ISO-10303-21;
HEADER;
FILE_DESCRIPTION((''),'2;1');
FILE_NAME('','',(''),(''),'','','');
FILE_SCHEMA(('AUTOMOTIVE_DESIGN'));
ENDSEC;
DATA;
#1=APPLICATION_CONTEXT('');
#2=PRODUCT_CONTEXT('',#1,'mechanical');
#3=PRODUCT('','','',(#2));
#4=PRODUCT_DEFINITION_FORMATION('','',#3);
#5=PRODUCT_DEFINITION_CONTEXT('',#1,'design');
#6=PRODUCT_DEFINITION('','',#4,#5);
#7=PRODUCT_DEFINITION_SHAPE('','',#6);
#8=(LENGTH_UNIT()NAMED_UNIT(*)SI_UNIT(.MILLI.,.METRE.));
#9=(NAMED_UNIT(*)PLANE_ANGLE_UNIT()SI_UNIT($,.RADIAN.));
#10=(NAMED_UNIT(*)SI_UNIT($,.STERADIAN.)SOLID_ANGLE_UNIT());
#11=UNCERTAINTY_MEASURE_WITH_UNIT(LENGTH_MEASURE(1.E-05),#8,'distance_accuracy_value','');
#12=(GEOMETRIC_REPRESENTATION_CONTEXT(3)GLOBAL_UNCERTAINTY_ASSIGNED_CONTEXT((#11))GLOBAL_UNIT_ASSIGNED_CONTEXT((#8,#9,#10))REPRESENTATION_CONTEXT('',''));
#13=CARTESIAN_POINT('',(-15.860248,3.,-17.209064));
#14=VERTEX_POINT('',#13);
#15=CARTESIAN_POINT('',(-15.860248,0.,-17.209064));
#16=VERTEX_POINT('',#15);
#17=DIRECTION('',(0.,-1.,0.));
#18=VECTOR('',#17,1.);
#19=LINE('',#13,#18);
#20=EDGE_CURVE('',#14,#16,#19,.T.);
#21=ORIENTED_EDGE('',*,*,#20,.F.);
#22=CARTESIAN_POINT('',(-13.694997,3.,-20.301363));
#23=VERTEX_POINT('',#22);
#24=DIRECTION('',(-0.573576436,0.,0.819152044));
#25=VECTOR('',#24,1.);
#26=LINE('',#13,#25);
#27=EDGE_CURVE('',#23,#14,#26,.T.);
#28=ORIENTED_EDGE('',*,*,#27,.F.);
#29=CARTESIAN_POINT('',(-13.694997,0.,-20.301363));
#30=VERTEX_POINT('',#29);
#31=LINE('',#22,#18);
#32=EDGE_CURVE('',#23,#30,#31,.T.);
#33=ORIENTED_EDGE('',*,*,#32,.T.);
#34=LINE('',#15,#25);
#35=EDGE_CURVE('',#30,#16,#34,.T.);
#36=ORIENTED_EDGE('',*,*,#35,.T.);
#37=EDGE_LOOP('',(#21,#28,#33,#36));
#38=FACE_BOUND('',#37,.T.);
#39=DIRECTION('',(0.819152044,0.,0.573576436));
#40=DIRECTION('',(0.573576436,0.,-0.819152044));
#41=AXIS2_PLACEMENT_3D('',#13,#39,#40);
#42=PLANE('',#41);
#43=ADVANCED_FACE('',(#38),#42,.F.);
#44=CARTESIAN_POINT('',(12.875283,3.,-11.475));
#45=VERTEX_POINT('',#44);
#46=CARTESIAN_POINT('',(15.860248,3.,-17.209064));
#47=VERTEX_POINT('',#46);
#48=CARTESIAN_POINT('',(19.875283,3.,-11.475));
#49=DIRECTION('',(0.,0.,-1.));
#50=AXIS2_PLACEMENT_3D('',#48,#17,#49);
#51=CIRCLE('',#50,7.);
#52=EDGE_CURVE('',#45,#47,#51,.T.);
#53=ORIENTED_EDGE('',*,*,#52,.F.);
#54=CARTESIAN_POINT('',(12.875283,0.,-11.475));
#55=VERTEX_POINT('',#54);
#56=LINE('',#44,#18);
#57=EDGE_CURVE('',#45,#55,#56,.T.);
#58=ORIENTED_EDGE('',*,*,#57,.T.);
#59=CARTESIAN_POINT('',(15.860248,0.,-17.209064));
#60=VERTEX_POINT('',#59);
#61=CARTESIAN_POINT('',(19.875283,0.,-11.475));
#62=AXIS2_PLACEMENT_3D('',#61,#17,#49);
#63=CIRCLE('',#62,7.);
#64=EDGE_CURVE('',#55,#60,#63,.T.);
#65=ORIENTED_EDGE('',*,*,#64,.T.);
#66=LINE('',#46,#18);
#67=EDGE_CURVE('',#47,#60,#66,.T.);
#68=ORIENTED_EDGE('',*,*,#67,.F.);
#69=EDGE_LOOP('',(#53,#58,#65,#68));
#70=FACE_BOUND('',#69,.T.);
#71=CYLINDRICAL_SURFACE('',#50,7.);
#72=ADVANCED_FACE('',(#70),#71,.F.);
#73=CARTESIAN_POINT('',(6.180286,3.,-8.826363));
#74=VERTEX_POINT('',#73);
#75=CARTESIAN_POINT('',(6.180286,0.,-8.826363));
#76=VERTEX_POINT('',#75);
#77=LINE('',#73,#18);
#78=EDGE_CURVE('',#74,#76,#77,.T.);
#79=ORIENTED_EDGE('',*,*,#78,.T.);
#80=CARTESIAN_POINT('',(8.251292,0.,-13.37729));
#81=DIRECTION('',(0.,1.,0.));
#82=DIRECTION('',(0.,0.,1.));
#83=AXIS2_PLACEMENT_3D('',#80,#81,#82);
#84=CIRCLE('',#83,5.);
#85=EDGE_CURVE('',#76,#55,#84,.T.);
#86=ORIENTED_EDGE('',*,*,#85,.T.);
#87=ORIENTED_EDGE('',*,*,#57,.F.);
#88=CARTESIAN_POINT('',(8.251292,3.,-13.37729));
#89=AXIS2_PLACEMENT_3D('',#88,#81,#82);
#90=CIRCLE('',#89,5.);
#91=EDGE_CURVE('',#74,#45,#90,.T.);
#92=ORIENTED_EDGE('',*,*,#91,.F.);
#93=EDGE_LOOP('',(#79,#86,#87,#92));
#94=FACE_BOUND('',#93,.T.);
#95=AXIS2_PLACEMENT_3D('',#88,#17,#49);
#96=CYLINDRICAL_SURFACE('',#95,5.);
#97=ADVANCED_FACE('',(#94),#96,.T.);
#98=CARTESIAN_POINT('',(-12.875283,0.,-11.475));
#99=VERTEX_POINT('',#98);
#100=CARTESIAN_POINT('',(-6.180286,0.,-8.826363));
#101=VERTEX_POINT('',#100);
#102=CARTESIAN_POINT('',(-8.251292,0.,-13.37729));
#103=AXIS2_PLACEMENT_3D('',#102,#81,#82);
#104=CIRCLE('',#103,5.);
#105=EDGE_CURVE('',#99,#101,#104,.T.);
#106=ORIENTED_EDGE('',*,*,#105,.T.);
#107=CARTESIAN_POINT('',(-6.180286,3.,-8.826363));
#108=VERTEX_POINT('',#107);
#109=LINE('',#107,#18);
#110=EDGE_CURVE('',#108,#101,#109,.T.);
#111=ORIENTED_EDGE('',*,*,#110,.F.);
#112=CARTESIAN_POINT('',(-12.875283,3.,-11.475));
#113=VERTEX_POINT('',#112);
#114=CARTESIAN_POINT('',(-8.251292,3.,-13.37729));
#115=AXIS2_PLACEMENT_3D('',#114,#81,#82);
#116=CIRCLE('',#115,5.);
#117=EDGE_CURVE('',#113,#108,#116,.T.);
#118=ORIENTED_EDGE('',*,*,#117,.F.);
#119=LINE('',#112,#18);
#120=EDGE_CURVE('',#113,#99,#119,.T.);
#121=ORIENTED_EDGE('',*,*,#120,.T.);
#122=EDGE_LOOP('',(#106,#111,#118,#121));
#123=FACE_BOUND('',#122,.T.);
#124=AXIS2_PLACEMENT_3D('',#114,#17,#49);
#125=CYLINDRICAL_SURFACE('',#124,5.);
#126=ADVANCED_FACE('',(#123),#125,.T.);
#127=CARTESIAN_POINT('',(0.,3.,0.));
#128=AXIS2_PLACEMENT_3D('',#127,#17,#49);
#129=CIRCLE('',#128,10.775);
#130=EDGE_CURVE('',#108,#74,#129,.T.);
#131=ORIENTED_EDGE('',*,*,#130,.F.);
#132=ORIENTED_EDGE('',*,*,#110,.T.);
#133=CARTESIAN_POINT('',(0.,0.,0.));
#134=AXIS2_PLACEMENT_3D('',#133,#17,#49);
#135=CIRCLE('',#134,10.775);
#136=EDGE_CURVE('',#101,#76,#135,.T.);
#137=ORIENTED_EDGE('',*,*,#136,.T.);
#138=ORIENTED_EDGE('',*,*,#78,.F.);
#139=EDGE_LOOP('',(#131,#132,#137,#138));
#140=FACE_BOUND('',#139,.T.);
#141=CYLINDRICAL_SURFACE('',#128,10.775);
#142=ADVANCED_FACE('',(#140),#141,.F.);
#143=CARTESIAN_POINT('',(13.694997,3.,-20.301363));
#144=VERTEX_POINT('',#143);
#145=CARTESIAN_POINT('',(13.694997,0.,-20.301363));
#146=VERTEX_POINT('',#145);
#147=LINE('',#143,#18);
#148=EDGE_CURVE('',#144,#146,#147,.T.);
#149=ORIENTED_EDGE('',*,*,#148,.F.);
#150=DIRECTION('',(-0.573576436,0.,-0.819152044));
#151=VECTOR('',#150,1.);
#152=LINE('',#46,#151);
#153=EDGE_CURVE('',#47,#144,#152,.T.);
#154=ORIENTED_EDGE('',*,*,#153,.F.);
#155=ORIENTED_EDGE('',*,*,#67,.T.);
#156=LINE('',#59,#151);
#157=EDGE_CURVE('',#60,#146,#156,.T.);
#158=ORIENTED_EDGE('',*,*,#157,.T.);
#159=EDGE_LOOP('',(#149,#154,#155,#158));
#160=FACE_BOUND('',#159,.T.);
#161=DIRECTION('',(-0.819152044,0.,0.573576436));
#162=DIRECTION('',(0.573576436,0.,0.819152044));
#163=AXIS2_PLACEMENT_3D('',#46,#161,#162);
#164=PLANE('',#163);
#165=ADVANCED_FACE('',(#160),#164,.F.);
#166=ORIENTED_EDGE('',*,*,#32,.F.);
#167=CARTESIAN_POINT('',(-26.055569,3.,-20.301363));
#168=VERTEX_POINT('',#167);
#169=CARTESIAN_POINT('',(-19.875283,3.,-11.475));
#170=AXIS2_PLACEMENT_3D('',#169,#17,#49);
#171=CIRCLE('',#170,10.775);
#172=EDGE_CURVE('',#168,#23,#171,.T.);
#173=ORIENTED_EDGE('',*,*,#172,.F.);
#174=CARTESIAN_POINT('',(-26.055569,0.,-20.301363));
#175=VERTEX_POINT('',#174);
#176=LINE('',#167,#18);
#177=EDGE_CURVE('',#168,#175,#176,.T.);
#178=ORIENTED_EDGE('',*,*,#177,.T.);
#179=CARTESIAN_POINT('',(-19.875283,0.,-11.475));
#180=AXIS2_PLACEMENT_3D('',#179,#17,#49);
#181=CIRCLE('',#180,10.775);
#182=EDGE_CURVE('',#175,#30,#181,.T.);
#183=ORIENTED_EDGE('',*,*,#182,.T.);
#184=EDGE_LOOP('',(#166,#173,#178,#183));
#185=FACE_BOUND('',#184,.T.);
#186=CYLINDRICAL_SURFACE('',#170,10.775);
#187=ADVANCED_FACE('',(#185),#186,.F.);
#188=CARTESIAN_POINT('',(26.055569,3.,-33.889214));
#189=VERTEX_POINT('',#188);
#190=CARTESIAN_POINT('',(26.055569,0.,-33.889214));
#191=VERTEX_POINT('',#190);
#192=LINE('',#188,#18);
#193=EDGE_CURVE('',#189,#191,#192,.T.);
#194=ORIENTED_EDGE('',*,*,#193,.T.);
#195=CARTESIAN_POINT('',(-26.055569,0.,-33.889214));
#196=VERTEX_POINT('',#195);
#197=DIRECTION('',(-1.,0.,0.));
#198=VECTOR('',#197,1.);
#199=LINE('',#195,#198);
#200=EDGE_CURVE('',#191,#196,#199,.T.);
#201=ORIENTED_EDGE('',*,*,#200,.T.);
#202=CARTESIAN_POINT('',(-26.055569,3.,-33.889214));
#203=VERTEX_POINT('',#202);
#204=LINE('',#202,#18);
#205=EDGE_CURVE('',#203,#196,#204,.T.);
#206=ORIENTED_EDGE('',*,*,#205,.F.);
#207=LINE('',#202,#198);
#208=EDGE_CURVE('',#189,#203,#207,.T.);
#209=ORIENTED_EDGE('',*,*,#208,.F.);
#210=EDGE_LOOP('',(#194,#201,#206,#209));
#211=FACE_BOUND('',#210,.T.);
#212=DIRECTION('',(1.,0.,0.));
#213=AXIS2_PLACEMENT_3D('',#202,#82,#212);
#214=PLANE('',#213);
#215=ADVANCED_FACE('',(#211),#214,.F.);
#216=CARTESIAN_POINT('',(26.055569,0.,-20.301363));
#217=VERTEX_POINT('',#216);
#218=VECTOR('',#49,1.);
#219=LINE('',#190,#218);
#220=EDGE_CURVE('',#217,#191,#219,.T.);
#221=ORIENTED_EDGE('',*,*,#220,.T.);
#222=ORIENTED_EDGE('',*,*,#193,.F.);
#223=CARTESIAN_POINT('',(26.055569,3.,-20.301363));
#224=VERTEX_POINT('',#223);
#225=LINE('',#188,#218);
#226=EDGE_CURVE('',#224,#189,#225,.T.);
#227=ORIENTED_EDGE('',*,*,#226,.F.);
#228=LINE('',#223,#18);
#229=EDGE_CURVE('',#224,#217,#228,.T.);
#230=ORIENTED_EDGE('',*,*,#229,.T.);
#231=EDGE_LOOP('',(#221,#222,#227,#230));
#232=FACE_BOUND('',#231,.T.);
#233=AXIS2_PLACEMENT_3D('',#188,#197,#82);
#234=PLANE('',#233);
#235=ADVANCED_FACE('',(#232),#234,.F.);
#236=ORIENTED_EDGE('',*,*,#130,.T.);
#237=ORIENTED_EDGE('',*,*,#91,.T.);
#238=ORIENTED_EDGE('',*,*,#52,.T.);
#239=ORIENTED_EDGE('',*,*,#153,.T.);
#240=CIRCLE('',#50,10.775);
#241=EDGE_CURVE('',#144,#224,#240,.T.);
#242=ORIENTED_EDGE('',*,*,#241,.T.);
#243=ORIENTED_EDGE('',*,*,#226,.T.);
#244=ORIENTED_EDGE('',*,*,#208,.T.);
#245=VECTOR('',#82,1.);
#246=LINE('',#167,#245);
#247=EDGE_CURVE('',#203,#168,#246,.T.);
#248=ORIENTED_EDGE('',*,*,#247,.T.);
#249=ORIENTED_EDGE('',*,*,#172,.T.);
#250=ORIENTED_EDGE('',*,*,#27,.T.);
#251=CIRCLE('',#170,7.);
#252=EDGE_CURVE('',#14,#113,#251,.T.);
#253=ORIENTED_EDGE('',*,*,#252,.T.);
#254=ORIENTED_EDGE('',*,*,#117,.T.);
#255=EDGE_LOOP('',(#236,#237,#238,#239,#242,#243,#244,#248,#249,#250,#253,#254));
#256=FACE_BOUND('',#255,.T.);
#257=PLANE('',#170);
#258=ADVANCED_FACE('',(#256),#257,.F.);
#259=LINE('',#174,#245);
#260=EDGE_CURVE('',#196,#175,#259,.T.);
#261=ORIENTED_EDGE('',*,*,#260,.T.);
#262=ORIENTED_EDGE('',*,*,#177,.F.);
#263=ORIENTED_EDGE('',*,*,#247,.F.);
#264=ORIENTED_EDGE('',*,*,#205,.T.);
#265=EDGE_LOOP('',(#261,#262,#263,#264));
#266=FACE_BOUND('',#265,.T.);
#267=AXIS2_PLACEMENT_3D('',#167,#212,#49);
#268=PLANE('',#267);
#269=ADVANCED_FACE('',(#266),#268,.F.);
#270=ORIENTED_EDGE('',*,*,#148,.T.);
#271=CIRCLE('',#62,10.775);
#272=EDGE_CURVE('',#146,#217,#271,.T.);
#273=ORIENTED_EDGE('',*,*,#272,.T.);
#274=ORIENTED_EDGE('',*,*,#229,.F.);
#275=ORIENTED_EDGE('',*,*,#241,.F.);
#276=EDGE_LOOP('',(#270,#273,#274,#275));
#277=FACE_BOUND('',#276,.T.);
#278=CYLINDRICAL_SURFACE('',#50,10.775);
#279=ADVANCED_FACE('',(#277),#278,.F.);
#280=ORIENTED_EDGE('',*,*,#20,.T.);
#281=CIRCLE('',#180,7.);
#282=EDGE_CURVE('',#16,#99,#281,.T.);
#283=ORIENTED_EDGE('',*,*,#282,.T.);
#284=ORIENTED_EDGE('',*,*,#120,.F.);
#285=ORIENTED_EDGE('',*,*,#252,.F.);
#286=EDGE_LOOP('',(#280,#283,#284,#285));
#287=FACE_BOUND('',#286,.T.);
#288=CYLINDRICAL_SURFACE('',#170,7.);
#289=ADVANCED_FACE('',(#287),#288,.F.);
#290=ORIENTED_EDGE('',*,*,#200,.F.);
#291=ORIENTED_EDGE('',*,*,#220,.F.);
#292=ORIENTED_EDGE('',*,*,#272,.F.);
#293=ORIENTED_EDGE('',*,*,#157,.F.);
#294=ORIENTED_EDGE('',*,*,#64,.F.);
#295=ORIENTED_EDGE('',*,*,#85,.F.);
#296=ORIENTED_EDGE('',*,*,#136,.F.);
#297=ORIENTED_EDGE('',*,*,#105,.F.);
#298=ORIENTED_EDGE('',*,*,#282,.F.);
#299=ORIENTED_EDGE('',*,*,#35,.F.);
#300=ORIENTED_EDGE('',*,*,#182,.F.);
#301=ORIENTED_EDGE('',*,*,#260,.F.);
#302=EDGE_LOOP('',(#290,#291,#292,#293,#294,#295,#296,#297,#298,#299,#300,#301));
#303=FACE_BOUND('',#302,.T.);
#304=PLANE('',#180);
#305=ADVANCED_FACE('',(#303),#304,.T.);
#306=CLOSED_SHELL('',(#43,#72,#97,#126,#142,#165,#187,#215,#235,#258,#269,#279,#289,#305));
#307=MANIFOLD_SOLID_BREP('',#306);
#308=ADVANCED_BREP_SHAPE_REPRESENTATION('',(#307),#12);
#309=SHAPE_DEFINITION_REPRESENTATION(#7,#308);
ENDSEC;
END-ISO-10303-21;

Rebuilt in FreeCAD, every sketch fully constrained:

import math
import FreeCAD as App
import Part
import Sketcher

V = App.Vector
Q = App.Units.Quantity

doc = App.newDocument("Part")
body = doc.addObject("PartDesign::Body", "Body")

sketch1 = body.newObject("Sketcher::SketchObject", "Sketch")
sketch1.AttachmentSupport = (doc.getObject("XZ_Plane"), [""])
sketch1.MapMode = "FlatFace"
sketch1.addGeometry([
    Part.LineSegment(V(-13.7, -20.3, 0), V(-15.9, -17.2, 0)),
    Part.ArcOfCircle(Part.Circle(V(-19.9, -11.5, 0), V(0, 0, 1), 7), math.radians(-55), math.radians(0)),
    Part.ArcOfCircle(Part.Circle(V(-8.3, -13.4, 0), V(0, 0, 1), 5), math.radians(66), math.radians(158)),
    Part.ArcOfCircle(Part.Circle(V(0, 0, 0), V(0, 0, 1), 10.8), math.radians(-125), math.radians(-55)),
    Part.ArcOfCircle(Part.Circle(V(8.3, -13.4, 0), V(0, 0, 1), 5), math.radians(22), math.radians(114)),
    Part.ArcOfCircle(Part.Circle(V(19.9, -11.5, 0), V(0, 0, 1), 7), math.radians(-180), math.radians(-125)),
    Part.LineSegment(V(15.9, -17.2, 0), V(13.7, -20.3, 0)),
    Part.ArcOfCircle(Part.Circle(V(19.9, -11.5, 0), V(0, 0, 1), 10.8), math.radians(-125), math.radians(-55)),
    Part.LineSegment(V(26.1, -20.3, 0), V(26.1, -33.9, 0)),
    Part.LineSegment(V(26.1, -33.9, 0), V(-26.1, -33.9, 0)),
    Part.LineSegment(V(-26.1, -33.9, 0), V(-26.1, -20.3, 0)),
    Part.ArcOfCircle(Part.Circle(V(-19.9, -11.5, 0), V(0, 0, 1), 10.8), math.radians(-125), math.radians(-55)),
], False)
sketch1.addConstraint([
    Sketcher.Constraint("Coincident", 0, 2, 1, 1),
    Sketcher.Constraint("Coincident", 1, 2, 2, 2),
    Sketcher.Constraint("Coincident", 2, 1, 3, 1),
    Sketcher.Constraint("Coincident", 3, 2, 4, 2),
    Sketcher.Constraint("Coincident", 4, 1, 5, 1),
    Sketcher.Constraint("Coincident", 5, 2, 6, 1),
    Sketcher.Constraint("Coincident", 6, 2, 7, 1),
    Sketcher.Constraint("Coincident", 7, 2, 8, 1),
    Sketcher.Constraint("Coincident", 8, 2, 9, 1),
    Sketcher.Constraint("Coincident", 9, 2, 10, 1),
    Sketcher.Constraint("Coincident", 10, 2, 11, 1),
    Sketcher.Constraint("Coincident", 11, 2, 0, 1),
    Sketcher.Constraint("Vertical", 8),
    Sketcher.Constraint("Horizontal", 9),
    Sketcher.Constraint("Vertical", 10),
    Sketcher.Constraint("Coincident", 3, 3, -1, 1),
    Sketcher.Constraint("Coincident", 7, 3, 5, 3),
    Sketcher.Constraint("Coincident", 11, 3, 1, 3),
    Sketcher.Constraint("Equal", 2, 4),
    Sketcher.Constraint("Equal", 1, 5),
    Sketcher.Constraint("Equal", 3, 7),
    Sketcher.Constraint("Equal", 7, 11),
    Sketcher.Constraint("Symmetric", 2, 3, 4, 3, -2),
    Sketcher.Constraint("Symmetric", 1, 3, 5, 3, -2),
    Sketcher.Constraint("Horizontal", 11, 3, 1, 2),
    Sketcher.Constraint("Horizontal", 0, 2, 5, 2),
    Sketcher.Constraint("Horizontal", 6, 2, 7, 2),
    Sketcher.Constraint("Horizontal", 7, 2, 10, 2),
    Sketcher.Constraint("Horizontal", 10, 2, 11, 2),
    Sketcher.Constraint("Radius", 1, Q("7 mm")),
    Sketcher.Constraint("Radius", 2, Q("5 mm")),
    Sketcher.Constraint("Angle", 0, Q("125 deg")),
    Sketcher.Constraint("Radius", 3, Q("10.775 mm")),
    Sketcher.Constraint("DistanceY", 1, 3, -1, 1, Q("11.475 mm")),
    Sketcher.Constraint("DistanceX", 9, 2, 9, 1, Q("52.111138 mm")),
    Sketcher.Constraint("DistanceY", 8, 2, 8, 1, Q("13.58785 mm")),
    Sketcher.Constraint("DistanceY", 0, 2, 2, 1, Q("8.382701 mm")),
    Sketcher.Constraint("DistanceY", 2, 3, -1, 1, Q("13.37729 mm")),
])
pad1 = body.newObject("PartDesign::Pad", "Pad")
pad1.Profile = sketch1
pad1.Length = 3
pad1.Reversed = True

doc.recompute()
